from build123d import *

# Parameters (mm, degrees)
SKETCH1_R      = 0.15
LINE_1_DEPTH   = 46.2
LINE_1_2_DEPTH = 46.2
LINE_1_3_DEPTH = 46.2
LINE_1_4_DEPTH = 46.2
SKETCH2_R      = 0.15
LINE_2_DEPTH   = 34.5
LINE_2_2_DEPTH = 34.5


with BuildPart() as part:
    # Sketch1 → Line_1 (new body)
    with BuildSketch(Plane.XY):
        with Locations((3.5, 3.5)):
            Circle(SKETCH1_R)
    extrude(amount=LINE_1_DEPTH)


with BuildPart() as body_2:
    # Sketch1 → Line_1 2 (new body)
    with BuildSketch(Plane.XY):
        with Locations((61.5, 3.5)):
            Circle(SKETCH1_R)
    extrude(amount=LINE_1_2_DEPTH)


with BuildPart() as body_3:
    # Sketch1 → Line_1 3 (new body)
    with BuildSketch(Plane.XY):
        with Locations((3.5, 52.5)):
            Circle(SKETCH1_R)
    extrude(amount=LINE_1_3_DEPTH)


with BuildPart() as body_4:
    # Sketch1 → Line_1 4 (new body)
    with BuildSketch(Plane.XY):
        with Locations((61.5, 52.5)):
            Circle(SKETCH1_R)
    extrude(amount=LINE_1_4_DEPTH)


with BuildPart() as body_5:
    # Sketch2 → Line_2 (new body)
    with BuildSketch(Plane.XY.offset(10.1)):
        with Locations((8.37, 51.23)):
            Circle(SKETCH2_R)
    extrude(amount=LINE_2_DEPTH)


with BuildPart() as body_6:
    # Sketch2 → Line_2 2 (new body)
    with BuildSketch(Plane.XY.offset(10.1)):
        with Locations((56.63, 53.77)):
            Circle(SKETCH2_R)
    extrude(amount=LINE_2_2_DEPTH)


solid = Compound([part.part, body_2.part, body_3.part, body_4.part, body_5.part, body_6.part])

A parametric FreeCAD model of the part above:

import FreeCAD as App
import Part
import Sketcher
from FreeCAD import Vector

doc = App.newDocument("Part")
body = doc.addObject("PartDesign::Body", "Body")

# Sketch on XY plane
sketch1 = body.newObject("Sketcher::SketchObject", "Sketch")
sketch1.AttachmentSupport = (doc.getObject("XY_Plane"), [""])
sketch1.MapMode = "FlatFace"
sketch1.addGeometry(Part.Circle(Vector(3.5, 3.5, 0), Vector(0, 0, 1), 0.15), False)
sketch1.addConstraint(Sketcher.Constraint("Diameter", 0, 0.3))
sketch1.addConstraint(Sketcher.Constraint("DistanceX", -1, 1, 0, 3, 3.5))
sketch1.addConstraint(Sketcher.Constraint("DistanceY", -1, 1, 0, 3, 3.5))
pad1 = body.newObject("PartDesign::Pad", "Pad")
pad1.Profile = sketch1
pad1.Length = 46.2
body2 = doc.addObject("PartDesign::Body", "Body001")

# Sketch on XY plane
sketch2 = body2.newObject("Sketcher::SketchObject", "Sketch001")
sketch2.AttachmentSupport = (doc.getObject("XY_Plane001"), [""])
sketch2.MapMode = "FlatFace"
sketch2.addGeometry(Part.Circle(Vector(61.5, 3.5, 0), Vector(0, 0, 1), 0.15), False)
sketch2.addConstraint(Sketcher.Constraint("Diameter", 0, 0.3))
sketch2.addConstraint(Sketcher.Constraint("DistanceX", -1, 1, 0, 3, 61.5))
sketch2.addConstraint(Sketcher.Constraint("DistanceY", -1, 1, 0, 3, 3.5))
pad2 = body2.newObject("PartDesign::Pad", "Pad001")
pad2.Profile = sketch2
pad2.Length = 46.2
body3 = doc.addObject("PartDesign::Body", "Body002")

# Sketch on XY plane
sketch3 = body3.newObject("Sketcher::SketchObject", "Sketch002")
sketch3.AttachmentSupport = (doc.getObject("XY_Plane002"), [""])
sketch3.MapMode = "FlatFace"
sketch3.addGeometry(Part.Circle(Vector(3.5, 52.5, 0), Vector(0, 0, 1), 0.15), False)
sketch3.addConstraint(Sketcher.Constraint("Diameter", 0, 0.3))
sketch3.addConstraint(Sketcher.Constraint("DistanceX", -1, 1, 0, 3, 3.5))
sketch3.addConstraint(Sketcher.Constraint("DistanceY", -1, 1, 0, 3, 52.5))
pad3 = body3.newObject("PartDesign::Pad", "Pad002")
pad3.Profile = sketch3
pad3.Length = 46.2
body4 = doc.addObject("PartDesign::Body", "Body003")

# Sketch on XY plane
sketch4 = body4.newObject("Sketcher::SketchObject", "Sketch003")
sketch4.AttachmentSupport = (doc.getObject("XY_Plane003"), [""])
sketch4.MapMode = "FlatFace"
sketch4.addGeometry(Part.Circle(Vector(61.5, 52.5, 0), Vector(0, 0, 1), 0.15), False)
sketch4.addConstraint(Sketcher.Constraint("Diameter", 0, 0.3))
sketch4.addConstraint(Sketcher.Constraint("DistanceX", -1, 1, 0, 3, 61.5))
sketch4.addConstraint(Sketcher.Constraint("DistanceY", -1, 1, 0, 3, 52.5))
pad4 = body4.newObject("PartDesign::Pad", "Pad003")
pad4.Profile = sketch4
pad4.Length = 46.2
body5 = doc.addObject("PartDesign::Body", "Body004")

# Sketch on XY plane
sketch5 = body5.newObject("Sketcher::SketchObject", "Sketch004")
sketch5.AttachmentSupport = (doc.getObject("XY_Plane004"), [""])
sketch5.MapMode = "FlatFace"
sketch5.AttachmentOffset = App.Placement(Vector(0, 0, 10.1), App.Rotation())
sketch5.addGeometry(Part.Circle(Vector(8.37, 51.23, 0), Vector(0, 0, 1), 0.15), False)
sketch5.addConstraint(Sketcher.Constraint("Diameter", 0, 0.3))
sketch5.addConstraint(Sketcher.Constraint("DistanceX", -1, 1, 0, 3, 8.37))
sketch5.addConstraint(Sketcher.Constraint("DistanceY", -1, 1, 0, 3, 51.23))
pad5 = body5.newObject("PartDesign::Pad", "Pad004")
pad5.Profile = sketch5
pad5.Length = 34.5
body6 = doc.addObject("PartDesign::Body", "Body005")

# Sketch on XY plane
sketch6 = body6.newObject("Sketcher::SketchObject", "Sketch005")
sketch6.AttachmentSupport = (doc.getObject("XY_Plane005"), [""])
sketch6.MapMode = "FlatFace"
sketch6.AttachmentOffset = App.Placement(Vector(0, 0, 10.1), App.Rotation())
sketch6.addGeometry(Part.Circle(Vector(56.63, 53.77, 0), Vector(0, 0, 1), 0.15), False)
sketch6.addConstraint(Sketcher.Constraint("Diameter", 0, 0.3))
sketch6.addConstraint(Sketcher.Constraint("DistanceX", -1, 1, 0, 3, 56.63))
sketch6.addConstraint(Sketcher.Constraint("DistanceY", -1, 1, 0, 3, 53.77))
pad6 = body6.newObject("PartDesign::Pad", "Pad005")
pad6.Profile = sketch6
pad6.Length = 34.5

doc.recompute()
